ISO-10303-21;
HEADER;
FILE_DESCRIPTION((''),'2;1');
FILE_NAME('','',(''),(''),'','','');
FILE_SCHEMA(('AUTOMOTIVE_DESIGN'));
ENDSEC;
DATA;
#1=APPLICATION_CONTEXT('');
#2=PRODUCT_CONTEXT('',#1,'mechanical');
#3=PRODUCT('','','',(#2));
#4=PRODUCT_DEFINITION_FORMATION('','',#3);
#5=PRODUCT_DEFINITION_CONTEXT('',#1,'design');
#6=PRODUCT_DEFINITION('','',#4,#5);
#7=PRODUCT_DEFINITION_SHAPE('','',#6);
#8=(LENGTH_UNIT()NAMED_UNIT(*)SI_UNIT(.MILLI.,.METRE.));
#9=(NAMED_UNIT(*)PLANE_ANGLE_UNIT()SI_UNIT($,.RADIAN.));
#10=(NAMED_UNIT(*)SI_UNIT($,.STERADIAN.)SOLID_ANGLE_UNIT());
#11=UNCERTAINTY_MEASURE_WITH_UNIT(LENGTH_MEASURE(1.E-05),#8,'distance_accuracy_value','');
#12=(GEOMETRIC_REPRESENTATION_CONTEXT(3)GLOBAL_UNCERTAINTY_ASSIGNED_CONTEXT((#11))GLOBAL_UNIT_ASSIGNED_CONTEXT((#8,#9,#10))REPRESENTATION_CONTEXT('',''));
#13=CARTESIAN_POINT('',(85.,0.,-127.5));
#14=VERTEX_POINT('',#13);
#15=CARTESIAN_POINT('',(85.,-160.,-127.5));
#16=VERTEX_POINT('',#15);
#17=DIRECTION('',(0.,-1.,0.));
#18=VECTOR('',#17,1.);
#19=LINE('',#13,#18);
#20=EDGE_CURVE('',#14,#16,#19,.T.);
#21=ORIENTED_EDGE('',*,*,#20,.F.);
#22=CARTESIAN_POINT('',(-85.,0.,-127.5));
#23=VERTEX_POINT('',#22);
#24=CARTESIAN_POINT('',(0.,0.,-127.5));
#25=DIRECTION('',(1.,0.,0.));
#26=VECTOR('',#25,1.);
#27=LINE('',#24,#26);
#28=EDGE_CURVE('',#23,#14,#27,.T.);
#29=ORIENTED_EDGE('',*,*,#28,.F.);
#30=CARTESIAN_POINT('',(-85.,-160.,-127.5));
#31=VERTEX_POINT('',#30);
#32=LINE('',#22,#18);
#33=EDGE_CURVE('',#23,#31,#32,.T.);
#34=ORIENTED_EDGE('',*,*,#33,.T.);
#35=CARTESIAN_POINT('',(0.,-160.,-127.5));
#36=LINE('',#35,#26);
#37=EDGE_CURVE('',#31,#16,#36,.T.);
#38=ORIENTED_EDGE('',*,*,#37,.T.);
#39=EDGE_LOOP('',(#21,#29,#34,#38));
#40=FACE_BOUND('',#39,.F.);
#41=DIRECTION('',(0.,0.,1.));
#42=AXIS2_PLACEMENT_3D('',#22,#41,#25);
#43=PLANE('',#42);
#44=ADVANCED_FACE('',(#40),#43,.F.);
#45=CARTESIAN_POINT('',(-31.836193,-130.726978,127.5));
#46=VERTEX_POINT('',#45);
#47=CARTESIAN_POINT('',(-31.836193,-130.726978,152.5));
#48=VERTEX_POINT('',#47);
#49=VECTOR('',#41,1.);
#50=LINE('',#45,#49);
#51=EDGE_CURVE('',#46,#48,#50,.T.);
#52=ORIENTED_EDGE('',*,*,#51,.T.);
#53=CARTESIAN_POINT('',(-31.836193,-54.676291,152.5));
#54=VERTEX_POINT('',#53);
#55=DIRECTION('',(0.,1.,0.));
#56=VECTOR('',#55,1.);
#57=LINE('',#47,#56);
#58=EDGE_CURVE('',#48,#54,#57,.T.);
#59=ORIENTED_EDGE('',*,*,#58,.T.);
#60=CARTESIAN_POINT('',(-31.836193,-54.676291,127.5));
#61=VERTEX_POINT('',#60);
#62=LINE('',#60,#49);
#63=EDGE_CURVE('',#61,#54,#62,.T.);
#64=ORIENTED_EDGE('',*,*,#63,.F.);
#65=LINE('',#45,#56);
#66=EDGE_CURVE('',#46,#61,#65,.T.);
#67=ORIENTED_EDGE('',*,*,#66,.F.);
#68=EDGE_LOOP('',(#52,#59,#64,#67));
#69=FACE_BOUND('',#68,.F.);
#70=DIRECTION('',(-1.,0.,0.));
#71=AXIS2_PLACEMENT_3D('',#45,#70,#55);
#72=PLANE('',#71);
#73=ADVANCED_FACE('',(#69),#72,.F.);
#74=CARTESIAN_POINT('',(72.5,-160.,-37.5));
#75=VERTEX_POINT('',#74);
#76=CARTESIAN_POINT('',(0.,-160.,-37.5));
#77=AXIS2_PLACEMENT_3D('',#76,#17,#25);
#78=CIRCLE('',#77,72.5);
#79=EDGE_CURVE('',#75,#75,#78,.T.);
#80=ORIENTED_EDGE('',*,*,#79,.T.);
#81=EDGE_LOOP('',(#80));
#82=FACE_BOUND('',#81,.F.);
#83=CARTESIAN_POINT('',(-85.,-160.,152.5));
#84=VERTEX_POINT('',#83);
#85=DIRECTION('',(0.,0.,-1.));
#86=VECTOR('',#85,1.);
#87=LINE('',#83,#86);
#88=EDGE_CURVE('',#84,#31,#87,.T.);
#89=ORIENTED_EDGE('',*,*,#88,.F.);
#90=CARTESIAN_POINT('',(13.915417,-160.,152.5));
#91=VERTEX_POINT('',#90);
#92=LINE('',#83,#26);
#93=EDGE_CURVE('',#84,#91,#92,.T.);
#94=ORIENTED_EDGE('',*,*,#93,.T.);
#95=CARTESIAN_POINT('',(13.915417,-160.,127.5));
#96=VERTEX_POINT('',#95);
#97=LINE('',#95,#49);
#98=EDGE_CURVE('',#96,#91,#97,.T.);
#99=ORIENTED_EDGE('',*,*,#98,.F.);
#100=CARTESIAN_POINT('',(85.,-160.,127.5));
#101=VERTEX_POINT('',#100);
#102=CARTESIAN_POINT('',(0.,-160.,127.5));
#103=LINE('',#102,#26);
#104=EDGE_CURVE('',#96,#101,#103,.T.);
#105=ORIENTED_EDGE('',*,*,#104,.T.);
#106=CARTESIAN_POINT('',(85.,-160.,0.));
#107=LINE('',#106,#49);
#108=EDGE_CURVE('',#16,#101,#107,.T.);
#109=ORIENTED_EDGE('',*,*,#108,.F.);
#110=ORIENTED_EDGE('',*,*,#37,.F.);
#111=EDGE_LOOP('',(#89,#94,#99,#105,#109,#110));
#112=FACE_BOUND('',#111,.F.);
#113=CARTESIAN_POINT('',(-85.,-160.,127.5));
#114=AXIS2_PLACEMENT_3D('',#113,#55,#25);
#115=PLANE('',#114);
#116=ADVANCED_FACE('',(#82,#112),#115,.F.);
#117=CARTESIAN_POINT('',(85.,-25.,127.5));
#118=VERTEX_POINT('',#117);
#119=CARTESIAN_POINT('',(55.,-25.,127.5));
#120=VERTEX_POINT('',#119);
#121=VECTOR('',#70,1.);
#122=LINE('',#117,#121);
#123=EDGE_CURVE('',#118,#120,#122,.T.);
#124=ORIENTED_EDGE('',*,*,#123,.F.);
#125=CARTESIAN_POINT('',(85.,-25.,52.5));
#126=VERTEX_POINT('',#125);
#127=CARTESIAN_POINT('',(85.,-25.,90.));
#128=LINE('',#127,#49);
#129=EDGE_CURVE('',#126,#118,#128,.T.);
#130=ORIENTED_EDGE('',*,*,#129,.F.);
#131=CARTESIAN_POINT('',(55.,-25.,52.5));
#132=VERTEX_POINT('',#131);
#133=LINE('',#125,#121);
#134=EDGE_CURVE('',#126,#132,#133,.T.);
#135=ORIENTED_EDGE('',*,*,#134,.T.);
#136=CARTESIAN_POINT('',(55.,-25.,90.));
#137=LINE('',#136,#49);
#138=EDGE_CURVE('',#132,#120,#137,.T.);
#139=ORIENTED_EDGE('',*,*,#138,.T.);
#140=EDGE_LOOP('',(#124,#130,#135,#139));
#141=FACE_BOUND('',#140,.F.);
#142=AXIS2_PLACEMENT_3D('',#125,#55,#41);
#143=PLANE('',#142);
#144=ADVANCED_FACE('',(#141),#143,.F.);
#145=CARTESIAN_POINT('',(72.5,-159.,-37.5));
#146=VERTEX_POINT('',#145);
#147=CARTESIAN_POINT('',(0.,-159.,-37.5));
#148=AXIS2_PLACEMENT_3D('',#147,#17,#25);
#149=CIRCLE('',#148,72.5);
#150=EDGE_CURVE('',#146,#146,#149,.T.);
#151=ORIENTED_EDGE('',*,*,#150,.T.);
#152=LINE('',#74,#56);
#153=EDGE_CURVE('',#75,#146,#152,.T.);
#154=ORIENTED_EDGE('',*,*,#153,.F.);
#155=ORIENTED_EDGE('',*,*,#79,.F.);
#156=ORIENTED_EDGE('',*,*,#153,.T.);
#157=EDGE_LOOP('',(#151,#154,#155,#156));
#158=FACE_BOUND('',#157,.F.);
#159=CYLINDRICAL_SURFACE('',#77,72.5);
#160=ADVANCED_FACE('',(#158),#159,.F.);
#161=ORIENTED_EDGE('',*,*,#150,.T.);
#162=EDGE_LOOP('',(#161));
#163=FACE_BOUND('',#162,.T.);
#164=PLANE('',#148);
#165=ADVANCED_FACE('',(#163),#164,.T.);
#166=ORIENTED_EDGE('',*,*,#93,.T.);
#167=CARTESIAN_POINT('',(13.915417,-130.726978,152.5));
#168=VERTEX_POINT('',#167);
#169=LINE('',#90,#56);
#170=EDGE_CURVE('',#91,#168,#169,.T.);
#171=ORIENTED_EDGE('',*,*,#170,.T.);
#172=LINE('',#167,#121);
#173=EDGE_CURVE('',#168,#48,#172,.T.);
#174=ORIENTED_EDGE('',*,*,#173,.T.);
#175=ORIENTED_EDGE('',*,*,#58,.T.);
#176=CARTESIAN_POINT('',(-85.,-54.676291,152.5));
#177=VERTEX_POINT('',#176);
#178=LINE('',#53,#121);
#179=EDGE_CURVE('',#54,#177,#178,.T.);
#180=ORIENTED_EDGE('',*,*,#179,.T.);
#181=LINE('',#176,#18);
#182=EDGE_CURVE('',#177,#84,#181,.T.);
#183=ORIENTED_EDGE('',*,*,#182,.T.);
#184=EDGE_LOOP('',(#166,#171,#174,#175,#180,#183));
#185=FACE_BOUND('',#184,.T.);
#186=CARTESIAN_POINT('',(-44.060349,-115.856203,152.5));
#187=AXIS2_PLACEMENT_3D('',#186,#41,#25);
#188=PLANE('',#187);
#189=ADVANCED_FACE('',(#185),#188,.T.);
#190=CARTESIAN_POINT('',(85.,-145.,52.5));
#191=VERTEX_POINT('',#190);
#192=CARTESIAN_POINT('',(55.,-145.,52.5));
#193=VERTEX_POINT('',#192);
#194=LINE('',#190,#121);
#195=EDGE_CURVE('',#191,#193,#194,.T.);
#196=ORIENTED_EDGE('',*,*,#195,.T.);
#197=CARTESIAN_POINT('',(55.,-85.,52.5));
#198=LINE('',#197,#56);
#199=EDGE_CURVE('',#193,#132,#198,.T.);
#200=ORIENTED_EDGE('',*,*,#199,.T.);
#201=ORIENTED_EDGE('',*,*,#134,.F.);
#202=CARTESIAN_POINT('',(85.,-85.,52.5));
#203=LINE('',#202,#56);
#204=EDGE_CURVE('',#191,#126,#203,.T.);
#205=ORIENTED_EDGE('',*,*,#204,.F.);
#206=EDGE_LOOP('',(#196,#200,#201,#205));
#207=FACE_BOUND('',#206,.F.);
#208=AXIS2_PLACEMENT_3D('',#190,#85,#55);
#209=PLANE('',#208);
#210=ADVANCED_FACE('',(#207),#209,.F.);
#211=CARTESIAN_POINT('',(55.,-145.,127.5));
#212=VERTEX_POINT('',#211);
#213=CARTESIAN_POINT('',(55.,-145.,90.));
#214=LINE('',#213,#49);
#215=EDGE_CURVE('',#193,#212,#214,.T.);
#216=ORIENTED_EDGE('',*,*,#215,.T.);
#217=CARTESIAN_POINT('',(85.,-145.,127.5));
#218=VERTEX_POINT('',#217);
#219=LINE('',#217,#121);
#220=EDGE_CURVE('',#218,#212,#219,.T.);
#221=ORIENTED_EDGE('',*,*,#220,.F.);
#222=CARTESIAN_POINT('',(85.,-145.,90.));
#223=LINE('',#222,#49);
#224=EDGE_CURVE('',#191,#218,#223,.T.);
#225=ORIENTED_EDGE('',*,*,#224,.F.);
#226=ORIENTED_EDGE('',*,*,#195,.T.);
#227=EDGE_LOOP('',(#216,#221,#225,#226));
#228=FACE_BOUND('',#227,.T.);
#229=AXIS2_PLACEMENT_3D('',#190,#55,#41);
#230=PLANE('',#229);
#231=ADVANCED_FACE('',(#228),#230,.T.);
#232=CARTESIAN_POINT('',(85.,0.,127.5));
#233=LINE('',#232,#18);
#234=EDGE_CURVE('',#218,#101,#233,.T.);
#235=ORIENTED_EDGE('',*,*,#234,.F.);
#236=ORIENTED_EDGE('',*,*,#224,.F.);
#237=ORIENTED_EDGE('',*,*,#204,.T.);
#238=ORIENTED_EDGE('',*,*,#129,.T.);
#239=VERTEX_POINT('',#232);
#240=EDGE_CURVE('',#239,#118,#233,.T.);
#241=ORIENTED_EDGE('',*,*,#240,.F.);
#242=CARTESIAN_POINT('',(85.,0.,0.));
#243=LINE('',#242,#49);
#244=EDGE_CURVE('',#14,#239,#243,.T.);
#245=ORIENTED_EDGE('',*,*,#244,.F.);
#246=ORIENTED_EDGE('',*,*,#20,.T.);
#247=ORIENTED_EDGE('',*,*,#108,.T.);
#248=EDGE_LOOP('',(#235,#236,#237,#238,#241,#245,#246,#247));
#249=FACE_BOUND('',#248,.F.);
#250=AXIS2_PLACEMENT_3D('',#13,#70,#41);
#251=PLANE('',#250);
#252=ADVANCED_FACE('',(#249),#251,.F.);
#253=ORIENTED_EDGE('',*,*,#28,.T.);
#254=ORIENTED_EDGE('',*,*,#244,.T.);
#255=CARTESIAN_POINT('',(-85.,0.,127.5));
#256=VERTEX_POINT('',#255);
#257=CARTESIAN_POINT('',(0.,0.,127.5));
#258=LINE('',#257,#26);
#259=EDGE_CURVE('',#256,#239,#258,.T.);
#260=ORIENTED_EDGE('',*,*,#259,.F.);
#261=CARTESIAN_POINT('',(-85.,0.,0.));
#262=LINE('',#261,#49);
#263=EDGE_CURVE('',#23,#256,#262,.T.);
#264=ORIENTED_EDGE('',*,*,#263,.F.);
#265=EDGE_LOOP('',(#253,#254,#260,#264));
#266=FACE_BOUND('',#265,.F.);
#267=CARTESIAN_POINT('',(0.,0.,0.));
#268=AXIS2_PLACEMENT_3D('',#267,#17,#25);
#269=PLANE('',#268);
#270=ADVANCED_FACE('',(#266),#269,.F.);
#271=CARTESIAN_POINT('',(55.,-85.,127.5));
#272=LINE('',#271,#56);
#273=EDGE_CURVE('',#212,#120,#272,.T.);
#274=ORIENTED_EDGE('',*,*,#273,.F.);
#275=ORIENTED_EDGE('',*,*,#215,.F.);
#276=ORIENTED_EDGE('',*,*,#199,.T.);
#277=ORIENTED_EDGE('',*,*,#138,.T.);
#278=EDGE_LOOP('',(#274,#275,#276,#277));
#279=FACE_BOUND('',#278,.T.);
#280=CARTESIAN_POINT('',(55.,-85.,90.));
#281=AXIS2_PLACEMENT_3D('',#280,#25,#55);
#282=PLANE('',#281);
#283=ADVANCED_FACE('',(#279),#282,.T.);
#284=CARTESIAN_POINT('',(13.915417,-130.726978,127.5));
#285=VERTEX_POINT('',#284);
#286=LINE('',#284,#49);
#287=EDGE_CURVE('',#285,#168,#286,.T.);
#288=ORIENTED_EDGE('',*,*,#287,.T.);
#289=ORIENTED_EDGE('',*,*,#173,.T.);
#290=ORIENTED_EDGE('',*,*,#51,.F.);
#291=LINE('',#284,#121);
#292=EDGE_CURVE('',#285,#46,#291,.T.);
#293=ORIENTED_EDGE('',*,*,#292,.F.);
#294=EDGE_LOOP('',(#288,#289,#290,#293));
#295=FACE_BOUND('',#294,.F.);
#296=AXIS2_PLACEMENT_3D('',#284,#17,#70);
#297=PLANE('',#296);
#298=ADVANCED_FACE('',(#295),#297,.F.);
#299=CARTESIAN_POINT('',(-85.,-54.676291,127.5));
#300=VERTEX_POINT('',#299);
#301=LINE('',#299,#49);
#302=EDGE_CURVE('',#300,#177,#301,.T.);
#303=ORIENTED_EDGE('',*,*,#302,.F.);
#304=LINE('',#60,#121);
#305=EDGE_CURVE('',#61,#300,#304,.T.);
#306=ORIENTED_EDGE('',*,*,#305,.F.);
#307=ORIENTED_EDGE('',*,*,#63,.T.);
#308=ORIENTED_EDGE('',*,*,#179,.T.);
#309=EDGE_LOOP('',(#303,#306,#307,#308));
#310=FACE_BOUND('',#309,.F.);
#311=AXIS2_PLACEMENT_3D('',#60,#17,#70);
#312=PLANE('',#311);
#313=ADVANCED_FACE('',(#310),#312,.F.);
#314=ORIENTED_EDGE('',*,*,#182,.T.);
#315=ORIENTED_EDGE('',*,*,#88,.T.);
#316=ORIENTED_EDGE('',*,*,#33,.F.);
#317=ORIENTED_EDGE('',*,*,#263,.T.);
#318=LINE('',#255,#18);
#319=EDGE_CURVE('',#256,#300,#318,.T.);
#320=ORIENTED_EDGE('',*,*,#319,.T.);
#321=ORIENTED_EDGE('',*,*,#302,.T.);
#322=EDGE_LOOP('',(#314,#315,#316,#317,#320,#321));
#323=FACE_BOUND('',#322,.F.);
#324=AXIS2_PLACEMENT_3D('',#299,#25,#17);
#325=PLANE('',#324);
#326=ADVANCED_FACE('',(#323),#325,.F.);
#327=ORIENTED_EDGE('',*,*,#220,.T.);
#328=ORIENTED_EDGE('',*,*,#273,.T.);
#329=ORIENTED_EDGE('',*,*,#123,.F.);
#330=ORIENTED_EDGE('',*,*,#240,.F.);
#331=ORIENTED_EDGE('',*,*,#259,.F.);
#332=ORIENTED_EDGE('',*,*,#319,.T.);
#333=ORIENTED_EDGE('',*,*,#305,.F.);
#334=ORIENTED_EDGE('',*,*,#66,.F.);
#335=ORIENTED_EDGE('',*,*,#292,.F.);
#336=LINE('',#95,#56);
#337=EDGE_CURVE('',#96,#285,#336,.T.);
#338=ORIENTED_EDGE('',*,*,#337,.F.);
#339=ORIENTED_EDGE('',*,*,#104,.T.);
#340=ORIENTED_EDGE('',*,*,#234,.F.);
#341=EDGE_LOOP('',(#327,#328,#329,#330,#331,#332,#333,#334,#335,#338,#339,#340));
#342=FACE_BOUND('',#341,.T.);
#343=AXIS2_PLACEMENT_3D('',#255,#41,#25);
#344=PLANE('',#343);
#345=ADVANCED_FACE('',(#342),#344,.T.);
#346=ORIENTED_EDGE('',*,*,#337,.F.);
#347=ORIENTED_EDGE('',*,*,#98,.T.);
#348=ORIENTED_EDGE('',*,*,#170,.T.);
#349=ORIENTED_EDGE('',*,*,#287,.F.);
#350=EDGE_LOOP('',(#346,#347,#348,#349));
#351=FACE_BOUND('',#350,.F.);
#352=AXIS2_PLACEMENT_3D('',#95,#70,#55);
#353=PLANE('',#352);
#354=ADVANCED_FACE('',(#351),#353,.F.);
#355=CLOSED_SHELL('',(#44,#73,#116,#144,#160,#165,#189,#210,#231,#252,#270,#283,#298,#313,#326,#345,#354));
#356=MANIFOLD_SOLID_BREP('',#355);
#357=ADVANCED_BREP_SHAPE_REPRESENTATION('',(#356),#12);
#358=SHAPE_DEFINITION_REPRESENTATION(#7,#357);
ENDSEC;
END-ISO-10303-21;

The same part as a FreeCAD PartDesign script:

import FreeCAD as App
import Part
import Sketcher

V = App.Vector

doc = App.newDocument("Part")
body = doc.addObject("PartDesign::Body", "Body")

# Sketch on XZ plane
sketch1 = body.newObject("Sketcher::SketchObject", "Sketch")
sketch1.AttachmentSupport = (doc.getObject("XZ_Plane"), [""])
sketch1.MapMode = "FlatFace"
sketch1.addGeometry(Part.LineSegment(V(-85, 127.5, 0), V(-85, -127.5, 0)), False)
sketch1.addGeometry(Part.LineSegment(V(-85, -127.5, 0), V(85, -127.5, 0)), False)
sketch1.addGeometry(Part.LineSegment(V(85, -127.5, 0), V(85, 127.5, 0)), False)
sketch1.addGeometry(Part.LineSegment(V(85, 127.5, 0), V(-85, 127.5, 0)), False)
sketch1.addConstraint(Sketcher.Constraint("Coincident", 0, 2, 1, 1))
sketch1.addConstraint(Sketcher.Constraint("Coincident", 1, 2, 2, 1))
sketch1.addConstraint(Sketcher.Constraint("Coincident", 2, 2, 3, 1))
sketch1.addConstraint(Sketcher.Constraint("Coincident", 3, 2, 0, 1))
sketch1.addConstraint(Sketcher.Constraint("Vertical", 0))
sketch1.addConstraint(Sketcher.Constraint("Horizontal", 1))
sketch1.addConstraint(Sketcher.Constraint("Vertical", 2))
sketch1.addConstraint(Sketcher.Constraint("Horizontal", 3))
sketch1.addConstraint(Sketcher.Constraint("Symmetric", 0, 2, 2, 2, -1, 1))
sketch1.addConstraint(Sketcher.Constraint("DistanceX", 1, 1, 1, 2, 170.0))
sketch1.addConstraint(Sketcher.Constraint("DistanceY", 0, 2, 0, 1, 255.0))
pad1 = body.newObject("PartDesign::Pad", "Pad")
pad1.Profile = sketch1
pad1.Length = 160

# Sketch on XZ plane
sketch2 = body.newObject("Sketcher::SketchObject", "Sketch001")
sketch2.AttachmentSupport = (doc.getObject("XZ_Plane"), [""])
sketch2.MapMode = "FlatFace"
sketch2.AttachmentOffset = App.Placement(V(0, 0, 160), App.Rotation())
sketch2.addGeometry(Part.Circle(V(0, -37.5, 0), V(0, 0, 1), 72.5), False)
sketch2.addConstraint(Sketcher.Constraint("PointOnObject", 0, 3, -2))
sketch2.addConstraint(Sketcher.Constraint("Diameter", 0, 145.0))
sketch2.addConstraint(Sketcher.Constraint("DistanceY", 0, 3, -1, 1, 37.5))
pocket1 = body.newObject("PartDesign::Pocket", "Pocket")
pocket1.Profile = sketch2
pocket1.Length = 1

# Sketch on YZ plane
sketch3 = body.newObject("Sketcher::SketchObject", "Sketch002")
sketch3.AttachmentSupport = (doc.getObject("YZ_Plane"), [""])
sketch3.MapMode = "FlatFace"
sketch3.AttachmentOffset = App.Placement(V(0, 0, 85), App.Rotation())
sketch3.addGeometry(Part.LineSegment(V(-145, 127.5, 0), V(-145, 52.5, 0)), False)
sketch3.addGeometry(Part.LineSegment(V(-145, 52.5, 0), V(-25, 52.5, 0)), False)
sketch3.addGeometry(Part.LineSegment(V(-25, 52.5, 0), V(-25, 127.5, 0)), False)
sketch3.addGeometry(Part.LineSegment(V(-25, 127.5, 0), V(-145, 127.5, 0)), False)
sketch3.addConstraint(Sketcher.Constraint("Coincident", 0, 2, 1, 1))
sketch3.addConstraint(Sketcher.Constraint("Coincident", 1, 2, 2, 1))
sketch3.addConstraint(Sketcher.Constraint("Coincident", 2, 2, 3, 1))
sketch3.addConstraint(Sketcher.Constraint("Coincident", 3, 2, 0, 1))
sketch3.addConstraint(Sketcher.Constraint("Vertical", 0))
sketch3.addConstraint(Sketcher.Constraint("Horizontal", 1))
sketch3.addConstraint(Sketcher.Constraint("Vertical", 2))
sketch3.addConstraint(Sketcher.Constraint("Horizontal", 3))
sketch3.addConstraint(Sketcher.Constraint("DistanceX", 1, 1, 1, 2, 120.0))
sketch3.addConstraint(Sketcher.Constraint("DistanceY", 0, 2, 0, 1, 75.0))
sketch3.addConstraint(Sketcher.Constraint("DistanceX", 0, 2, -1, 1, 145.0))
sketch3.addConstraint(Sketcher.Constraint("DistanceY", -1, 1, 0, 2, 52.5))
pocket2 = body.newObject("PartDesign::Pocket", "Pocket001")
pocket2.Profile = sketch3
pocket2.Length = 30

# Sketch on XY plane
sketch4 = body.newObject("Sketcher::SketchObject", "Sketch003")
sketch4.AttachmentSupport = (doc.getObject("XY_Plane"), [""])
sketch4.MapMode = "FlatFace"
sketch4.AttachmentOffset = App.Placement(V(0, 0, 127.5), App.Rotation())
sketch4.addGeometry(Part.LineSegment(V(-85, -160, 0), V(13.915417, -160, 0)), False)
sketch4.addGeometry(Part.LineSegment(V(13.915417, -160, 0), V(13.915417, -130.726978, 0)), False)
sketch4.addGeometry(Part.LineSegment(V(13.915417, -130.726978, 0), V(-31.836193, -130.726978, 0)), False)
sketch4.addGeometry(Part.LineSegment(V(-31.836193, -130.726978, 0), V(-31.836193, -54.676291, 0)), False)
sketch4.addGeometry(Part.LineSegment(V(-31.836193, -54.676291, 0), V(-85, -54.676291, 0)), False)
sketch4.addGeometry(Part.LineSegment(V(-85, -54.676291, 0), V(-85, -160, 0)), False)
sketch4.addConstraint(Sketcher.Constraint("Coincident", 0, 2, 1, 1))
sketch4.addConstraint(Sketcher.Constraint("Coincident", 1, 2, 2, 1))
sketch4.addConstraint(Sketcher.Constraint("Coincident", 2, 2, 3, 1))
sketch4.addConstraint(Sketcher.Constraint("Coincident", 3, 2, 4, 1))
sketch4.addConstraint(Sketcher.Constraint("Coincident", 4, 2, 5, 1))
sketch4.addConstraint(Sketcher.Constraint("Coincident", 5, 2, 0, 1))
sketch4.addConstraint(Sketcher.Constraint("Horizontal", 0))
sketch4.addConstraint(Sketcher.Constraint("Vertical", 1))
sketch4.addConstraint(Sketcher.Constraint("Horizontal", 2))
sketch4.addConstraint(Sketcher.Constraint("Vertical", 3))
sketch4.addConstraint(Sketcher.Constraint("Horizontal", 4))
sketch4.addConstraint(Sketcher.Constraint("Vertical", 5))
sketch4.addConstraint(Sketcher.Constraint("DistanceY", 0, 2, -1, 1, 160.0))
sketch4.addConstraint(Sketcher.Constraint("DistanceX", 4, 2, -1, 1, 85.0))
sketch4.addConstraint(Sketcher.Constraint("DistanceX", 2, 2, 2, 1, 45.75161))
sketch4.addConstraint(Sketcher.Constraint("DistanceY", 1, 1, 1, 2, 29.273022))
sketch4.addConstraint(Sketcher.Constraint("DistanceY", 5, 2, 5, 1, 105.323709))
sketch4.addConstraint(Sketcher.Constraint("DistanceX", 0, 1, 0, 2, 98.915417))
pad2 = body.newObject("PartDesign::Pad", "Pad001")
pad2.Profile = sketch4
pad2.Length = 25

doc.recompute()
